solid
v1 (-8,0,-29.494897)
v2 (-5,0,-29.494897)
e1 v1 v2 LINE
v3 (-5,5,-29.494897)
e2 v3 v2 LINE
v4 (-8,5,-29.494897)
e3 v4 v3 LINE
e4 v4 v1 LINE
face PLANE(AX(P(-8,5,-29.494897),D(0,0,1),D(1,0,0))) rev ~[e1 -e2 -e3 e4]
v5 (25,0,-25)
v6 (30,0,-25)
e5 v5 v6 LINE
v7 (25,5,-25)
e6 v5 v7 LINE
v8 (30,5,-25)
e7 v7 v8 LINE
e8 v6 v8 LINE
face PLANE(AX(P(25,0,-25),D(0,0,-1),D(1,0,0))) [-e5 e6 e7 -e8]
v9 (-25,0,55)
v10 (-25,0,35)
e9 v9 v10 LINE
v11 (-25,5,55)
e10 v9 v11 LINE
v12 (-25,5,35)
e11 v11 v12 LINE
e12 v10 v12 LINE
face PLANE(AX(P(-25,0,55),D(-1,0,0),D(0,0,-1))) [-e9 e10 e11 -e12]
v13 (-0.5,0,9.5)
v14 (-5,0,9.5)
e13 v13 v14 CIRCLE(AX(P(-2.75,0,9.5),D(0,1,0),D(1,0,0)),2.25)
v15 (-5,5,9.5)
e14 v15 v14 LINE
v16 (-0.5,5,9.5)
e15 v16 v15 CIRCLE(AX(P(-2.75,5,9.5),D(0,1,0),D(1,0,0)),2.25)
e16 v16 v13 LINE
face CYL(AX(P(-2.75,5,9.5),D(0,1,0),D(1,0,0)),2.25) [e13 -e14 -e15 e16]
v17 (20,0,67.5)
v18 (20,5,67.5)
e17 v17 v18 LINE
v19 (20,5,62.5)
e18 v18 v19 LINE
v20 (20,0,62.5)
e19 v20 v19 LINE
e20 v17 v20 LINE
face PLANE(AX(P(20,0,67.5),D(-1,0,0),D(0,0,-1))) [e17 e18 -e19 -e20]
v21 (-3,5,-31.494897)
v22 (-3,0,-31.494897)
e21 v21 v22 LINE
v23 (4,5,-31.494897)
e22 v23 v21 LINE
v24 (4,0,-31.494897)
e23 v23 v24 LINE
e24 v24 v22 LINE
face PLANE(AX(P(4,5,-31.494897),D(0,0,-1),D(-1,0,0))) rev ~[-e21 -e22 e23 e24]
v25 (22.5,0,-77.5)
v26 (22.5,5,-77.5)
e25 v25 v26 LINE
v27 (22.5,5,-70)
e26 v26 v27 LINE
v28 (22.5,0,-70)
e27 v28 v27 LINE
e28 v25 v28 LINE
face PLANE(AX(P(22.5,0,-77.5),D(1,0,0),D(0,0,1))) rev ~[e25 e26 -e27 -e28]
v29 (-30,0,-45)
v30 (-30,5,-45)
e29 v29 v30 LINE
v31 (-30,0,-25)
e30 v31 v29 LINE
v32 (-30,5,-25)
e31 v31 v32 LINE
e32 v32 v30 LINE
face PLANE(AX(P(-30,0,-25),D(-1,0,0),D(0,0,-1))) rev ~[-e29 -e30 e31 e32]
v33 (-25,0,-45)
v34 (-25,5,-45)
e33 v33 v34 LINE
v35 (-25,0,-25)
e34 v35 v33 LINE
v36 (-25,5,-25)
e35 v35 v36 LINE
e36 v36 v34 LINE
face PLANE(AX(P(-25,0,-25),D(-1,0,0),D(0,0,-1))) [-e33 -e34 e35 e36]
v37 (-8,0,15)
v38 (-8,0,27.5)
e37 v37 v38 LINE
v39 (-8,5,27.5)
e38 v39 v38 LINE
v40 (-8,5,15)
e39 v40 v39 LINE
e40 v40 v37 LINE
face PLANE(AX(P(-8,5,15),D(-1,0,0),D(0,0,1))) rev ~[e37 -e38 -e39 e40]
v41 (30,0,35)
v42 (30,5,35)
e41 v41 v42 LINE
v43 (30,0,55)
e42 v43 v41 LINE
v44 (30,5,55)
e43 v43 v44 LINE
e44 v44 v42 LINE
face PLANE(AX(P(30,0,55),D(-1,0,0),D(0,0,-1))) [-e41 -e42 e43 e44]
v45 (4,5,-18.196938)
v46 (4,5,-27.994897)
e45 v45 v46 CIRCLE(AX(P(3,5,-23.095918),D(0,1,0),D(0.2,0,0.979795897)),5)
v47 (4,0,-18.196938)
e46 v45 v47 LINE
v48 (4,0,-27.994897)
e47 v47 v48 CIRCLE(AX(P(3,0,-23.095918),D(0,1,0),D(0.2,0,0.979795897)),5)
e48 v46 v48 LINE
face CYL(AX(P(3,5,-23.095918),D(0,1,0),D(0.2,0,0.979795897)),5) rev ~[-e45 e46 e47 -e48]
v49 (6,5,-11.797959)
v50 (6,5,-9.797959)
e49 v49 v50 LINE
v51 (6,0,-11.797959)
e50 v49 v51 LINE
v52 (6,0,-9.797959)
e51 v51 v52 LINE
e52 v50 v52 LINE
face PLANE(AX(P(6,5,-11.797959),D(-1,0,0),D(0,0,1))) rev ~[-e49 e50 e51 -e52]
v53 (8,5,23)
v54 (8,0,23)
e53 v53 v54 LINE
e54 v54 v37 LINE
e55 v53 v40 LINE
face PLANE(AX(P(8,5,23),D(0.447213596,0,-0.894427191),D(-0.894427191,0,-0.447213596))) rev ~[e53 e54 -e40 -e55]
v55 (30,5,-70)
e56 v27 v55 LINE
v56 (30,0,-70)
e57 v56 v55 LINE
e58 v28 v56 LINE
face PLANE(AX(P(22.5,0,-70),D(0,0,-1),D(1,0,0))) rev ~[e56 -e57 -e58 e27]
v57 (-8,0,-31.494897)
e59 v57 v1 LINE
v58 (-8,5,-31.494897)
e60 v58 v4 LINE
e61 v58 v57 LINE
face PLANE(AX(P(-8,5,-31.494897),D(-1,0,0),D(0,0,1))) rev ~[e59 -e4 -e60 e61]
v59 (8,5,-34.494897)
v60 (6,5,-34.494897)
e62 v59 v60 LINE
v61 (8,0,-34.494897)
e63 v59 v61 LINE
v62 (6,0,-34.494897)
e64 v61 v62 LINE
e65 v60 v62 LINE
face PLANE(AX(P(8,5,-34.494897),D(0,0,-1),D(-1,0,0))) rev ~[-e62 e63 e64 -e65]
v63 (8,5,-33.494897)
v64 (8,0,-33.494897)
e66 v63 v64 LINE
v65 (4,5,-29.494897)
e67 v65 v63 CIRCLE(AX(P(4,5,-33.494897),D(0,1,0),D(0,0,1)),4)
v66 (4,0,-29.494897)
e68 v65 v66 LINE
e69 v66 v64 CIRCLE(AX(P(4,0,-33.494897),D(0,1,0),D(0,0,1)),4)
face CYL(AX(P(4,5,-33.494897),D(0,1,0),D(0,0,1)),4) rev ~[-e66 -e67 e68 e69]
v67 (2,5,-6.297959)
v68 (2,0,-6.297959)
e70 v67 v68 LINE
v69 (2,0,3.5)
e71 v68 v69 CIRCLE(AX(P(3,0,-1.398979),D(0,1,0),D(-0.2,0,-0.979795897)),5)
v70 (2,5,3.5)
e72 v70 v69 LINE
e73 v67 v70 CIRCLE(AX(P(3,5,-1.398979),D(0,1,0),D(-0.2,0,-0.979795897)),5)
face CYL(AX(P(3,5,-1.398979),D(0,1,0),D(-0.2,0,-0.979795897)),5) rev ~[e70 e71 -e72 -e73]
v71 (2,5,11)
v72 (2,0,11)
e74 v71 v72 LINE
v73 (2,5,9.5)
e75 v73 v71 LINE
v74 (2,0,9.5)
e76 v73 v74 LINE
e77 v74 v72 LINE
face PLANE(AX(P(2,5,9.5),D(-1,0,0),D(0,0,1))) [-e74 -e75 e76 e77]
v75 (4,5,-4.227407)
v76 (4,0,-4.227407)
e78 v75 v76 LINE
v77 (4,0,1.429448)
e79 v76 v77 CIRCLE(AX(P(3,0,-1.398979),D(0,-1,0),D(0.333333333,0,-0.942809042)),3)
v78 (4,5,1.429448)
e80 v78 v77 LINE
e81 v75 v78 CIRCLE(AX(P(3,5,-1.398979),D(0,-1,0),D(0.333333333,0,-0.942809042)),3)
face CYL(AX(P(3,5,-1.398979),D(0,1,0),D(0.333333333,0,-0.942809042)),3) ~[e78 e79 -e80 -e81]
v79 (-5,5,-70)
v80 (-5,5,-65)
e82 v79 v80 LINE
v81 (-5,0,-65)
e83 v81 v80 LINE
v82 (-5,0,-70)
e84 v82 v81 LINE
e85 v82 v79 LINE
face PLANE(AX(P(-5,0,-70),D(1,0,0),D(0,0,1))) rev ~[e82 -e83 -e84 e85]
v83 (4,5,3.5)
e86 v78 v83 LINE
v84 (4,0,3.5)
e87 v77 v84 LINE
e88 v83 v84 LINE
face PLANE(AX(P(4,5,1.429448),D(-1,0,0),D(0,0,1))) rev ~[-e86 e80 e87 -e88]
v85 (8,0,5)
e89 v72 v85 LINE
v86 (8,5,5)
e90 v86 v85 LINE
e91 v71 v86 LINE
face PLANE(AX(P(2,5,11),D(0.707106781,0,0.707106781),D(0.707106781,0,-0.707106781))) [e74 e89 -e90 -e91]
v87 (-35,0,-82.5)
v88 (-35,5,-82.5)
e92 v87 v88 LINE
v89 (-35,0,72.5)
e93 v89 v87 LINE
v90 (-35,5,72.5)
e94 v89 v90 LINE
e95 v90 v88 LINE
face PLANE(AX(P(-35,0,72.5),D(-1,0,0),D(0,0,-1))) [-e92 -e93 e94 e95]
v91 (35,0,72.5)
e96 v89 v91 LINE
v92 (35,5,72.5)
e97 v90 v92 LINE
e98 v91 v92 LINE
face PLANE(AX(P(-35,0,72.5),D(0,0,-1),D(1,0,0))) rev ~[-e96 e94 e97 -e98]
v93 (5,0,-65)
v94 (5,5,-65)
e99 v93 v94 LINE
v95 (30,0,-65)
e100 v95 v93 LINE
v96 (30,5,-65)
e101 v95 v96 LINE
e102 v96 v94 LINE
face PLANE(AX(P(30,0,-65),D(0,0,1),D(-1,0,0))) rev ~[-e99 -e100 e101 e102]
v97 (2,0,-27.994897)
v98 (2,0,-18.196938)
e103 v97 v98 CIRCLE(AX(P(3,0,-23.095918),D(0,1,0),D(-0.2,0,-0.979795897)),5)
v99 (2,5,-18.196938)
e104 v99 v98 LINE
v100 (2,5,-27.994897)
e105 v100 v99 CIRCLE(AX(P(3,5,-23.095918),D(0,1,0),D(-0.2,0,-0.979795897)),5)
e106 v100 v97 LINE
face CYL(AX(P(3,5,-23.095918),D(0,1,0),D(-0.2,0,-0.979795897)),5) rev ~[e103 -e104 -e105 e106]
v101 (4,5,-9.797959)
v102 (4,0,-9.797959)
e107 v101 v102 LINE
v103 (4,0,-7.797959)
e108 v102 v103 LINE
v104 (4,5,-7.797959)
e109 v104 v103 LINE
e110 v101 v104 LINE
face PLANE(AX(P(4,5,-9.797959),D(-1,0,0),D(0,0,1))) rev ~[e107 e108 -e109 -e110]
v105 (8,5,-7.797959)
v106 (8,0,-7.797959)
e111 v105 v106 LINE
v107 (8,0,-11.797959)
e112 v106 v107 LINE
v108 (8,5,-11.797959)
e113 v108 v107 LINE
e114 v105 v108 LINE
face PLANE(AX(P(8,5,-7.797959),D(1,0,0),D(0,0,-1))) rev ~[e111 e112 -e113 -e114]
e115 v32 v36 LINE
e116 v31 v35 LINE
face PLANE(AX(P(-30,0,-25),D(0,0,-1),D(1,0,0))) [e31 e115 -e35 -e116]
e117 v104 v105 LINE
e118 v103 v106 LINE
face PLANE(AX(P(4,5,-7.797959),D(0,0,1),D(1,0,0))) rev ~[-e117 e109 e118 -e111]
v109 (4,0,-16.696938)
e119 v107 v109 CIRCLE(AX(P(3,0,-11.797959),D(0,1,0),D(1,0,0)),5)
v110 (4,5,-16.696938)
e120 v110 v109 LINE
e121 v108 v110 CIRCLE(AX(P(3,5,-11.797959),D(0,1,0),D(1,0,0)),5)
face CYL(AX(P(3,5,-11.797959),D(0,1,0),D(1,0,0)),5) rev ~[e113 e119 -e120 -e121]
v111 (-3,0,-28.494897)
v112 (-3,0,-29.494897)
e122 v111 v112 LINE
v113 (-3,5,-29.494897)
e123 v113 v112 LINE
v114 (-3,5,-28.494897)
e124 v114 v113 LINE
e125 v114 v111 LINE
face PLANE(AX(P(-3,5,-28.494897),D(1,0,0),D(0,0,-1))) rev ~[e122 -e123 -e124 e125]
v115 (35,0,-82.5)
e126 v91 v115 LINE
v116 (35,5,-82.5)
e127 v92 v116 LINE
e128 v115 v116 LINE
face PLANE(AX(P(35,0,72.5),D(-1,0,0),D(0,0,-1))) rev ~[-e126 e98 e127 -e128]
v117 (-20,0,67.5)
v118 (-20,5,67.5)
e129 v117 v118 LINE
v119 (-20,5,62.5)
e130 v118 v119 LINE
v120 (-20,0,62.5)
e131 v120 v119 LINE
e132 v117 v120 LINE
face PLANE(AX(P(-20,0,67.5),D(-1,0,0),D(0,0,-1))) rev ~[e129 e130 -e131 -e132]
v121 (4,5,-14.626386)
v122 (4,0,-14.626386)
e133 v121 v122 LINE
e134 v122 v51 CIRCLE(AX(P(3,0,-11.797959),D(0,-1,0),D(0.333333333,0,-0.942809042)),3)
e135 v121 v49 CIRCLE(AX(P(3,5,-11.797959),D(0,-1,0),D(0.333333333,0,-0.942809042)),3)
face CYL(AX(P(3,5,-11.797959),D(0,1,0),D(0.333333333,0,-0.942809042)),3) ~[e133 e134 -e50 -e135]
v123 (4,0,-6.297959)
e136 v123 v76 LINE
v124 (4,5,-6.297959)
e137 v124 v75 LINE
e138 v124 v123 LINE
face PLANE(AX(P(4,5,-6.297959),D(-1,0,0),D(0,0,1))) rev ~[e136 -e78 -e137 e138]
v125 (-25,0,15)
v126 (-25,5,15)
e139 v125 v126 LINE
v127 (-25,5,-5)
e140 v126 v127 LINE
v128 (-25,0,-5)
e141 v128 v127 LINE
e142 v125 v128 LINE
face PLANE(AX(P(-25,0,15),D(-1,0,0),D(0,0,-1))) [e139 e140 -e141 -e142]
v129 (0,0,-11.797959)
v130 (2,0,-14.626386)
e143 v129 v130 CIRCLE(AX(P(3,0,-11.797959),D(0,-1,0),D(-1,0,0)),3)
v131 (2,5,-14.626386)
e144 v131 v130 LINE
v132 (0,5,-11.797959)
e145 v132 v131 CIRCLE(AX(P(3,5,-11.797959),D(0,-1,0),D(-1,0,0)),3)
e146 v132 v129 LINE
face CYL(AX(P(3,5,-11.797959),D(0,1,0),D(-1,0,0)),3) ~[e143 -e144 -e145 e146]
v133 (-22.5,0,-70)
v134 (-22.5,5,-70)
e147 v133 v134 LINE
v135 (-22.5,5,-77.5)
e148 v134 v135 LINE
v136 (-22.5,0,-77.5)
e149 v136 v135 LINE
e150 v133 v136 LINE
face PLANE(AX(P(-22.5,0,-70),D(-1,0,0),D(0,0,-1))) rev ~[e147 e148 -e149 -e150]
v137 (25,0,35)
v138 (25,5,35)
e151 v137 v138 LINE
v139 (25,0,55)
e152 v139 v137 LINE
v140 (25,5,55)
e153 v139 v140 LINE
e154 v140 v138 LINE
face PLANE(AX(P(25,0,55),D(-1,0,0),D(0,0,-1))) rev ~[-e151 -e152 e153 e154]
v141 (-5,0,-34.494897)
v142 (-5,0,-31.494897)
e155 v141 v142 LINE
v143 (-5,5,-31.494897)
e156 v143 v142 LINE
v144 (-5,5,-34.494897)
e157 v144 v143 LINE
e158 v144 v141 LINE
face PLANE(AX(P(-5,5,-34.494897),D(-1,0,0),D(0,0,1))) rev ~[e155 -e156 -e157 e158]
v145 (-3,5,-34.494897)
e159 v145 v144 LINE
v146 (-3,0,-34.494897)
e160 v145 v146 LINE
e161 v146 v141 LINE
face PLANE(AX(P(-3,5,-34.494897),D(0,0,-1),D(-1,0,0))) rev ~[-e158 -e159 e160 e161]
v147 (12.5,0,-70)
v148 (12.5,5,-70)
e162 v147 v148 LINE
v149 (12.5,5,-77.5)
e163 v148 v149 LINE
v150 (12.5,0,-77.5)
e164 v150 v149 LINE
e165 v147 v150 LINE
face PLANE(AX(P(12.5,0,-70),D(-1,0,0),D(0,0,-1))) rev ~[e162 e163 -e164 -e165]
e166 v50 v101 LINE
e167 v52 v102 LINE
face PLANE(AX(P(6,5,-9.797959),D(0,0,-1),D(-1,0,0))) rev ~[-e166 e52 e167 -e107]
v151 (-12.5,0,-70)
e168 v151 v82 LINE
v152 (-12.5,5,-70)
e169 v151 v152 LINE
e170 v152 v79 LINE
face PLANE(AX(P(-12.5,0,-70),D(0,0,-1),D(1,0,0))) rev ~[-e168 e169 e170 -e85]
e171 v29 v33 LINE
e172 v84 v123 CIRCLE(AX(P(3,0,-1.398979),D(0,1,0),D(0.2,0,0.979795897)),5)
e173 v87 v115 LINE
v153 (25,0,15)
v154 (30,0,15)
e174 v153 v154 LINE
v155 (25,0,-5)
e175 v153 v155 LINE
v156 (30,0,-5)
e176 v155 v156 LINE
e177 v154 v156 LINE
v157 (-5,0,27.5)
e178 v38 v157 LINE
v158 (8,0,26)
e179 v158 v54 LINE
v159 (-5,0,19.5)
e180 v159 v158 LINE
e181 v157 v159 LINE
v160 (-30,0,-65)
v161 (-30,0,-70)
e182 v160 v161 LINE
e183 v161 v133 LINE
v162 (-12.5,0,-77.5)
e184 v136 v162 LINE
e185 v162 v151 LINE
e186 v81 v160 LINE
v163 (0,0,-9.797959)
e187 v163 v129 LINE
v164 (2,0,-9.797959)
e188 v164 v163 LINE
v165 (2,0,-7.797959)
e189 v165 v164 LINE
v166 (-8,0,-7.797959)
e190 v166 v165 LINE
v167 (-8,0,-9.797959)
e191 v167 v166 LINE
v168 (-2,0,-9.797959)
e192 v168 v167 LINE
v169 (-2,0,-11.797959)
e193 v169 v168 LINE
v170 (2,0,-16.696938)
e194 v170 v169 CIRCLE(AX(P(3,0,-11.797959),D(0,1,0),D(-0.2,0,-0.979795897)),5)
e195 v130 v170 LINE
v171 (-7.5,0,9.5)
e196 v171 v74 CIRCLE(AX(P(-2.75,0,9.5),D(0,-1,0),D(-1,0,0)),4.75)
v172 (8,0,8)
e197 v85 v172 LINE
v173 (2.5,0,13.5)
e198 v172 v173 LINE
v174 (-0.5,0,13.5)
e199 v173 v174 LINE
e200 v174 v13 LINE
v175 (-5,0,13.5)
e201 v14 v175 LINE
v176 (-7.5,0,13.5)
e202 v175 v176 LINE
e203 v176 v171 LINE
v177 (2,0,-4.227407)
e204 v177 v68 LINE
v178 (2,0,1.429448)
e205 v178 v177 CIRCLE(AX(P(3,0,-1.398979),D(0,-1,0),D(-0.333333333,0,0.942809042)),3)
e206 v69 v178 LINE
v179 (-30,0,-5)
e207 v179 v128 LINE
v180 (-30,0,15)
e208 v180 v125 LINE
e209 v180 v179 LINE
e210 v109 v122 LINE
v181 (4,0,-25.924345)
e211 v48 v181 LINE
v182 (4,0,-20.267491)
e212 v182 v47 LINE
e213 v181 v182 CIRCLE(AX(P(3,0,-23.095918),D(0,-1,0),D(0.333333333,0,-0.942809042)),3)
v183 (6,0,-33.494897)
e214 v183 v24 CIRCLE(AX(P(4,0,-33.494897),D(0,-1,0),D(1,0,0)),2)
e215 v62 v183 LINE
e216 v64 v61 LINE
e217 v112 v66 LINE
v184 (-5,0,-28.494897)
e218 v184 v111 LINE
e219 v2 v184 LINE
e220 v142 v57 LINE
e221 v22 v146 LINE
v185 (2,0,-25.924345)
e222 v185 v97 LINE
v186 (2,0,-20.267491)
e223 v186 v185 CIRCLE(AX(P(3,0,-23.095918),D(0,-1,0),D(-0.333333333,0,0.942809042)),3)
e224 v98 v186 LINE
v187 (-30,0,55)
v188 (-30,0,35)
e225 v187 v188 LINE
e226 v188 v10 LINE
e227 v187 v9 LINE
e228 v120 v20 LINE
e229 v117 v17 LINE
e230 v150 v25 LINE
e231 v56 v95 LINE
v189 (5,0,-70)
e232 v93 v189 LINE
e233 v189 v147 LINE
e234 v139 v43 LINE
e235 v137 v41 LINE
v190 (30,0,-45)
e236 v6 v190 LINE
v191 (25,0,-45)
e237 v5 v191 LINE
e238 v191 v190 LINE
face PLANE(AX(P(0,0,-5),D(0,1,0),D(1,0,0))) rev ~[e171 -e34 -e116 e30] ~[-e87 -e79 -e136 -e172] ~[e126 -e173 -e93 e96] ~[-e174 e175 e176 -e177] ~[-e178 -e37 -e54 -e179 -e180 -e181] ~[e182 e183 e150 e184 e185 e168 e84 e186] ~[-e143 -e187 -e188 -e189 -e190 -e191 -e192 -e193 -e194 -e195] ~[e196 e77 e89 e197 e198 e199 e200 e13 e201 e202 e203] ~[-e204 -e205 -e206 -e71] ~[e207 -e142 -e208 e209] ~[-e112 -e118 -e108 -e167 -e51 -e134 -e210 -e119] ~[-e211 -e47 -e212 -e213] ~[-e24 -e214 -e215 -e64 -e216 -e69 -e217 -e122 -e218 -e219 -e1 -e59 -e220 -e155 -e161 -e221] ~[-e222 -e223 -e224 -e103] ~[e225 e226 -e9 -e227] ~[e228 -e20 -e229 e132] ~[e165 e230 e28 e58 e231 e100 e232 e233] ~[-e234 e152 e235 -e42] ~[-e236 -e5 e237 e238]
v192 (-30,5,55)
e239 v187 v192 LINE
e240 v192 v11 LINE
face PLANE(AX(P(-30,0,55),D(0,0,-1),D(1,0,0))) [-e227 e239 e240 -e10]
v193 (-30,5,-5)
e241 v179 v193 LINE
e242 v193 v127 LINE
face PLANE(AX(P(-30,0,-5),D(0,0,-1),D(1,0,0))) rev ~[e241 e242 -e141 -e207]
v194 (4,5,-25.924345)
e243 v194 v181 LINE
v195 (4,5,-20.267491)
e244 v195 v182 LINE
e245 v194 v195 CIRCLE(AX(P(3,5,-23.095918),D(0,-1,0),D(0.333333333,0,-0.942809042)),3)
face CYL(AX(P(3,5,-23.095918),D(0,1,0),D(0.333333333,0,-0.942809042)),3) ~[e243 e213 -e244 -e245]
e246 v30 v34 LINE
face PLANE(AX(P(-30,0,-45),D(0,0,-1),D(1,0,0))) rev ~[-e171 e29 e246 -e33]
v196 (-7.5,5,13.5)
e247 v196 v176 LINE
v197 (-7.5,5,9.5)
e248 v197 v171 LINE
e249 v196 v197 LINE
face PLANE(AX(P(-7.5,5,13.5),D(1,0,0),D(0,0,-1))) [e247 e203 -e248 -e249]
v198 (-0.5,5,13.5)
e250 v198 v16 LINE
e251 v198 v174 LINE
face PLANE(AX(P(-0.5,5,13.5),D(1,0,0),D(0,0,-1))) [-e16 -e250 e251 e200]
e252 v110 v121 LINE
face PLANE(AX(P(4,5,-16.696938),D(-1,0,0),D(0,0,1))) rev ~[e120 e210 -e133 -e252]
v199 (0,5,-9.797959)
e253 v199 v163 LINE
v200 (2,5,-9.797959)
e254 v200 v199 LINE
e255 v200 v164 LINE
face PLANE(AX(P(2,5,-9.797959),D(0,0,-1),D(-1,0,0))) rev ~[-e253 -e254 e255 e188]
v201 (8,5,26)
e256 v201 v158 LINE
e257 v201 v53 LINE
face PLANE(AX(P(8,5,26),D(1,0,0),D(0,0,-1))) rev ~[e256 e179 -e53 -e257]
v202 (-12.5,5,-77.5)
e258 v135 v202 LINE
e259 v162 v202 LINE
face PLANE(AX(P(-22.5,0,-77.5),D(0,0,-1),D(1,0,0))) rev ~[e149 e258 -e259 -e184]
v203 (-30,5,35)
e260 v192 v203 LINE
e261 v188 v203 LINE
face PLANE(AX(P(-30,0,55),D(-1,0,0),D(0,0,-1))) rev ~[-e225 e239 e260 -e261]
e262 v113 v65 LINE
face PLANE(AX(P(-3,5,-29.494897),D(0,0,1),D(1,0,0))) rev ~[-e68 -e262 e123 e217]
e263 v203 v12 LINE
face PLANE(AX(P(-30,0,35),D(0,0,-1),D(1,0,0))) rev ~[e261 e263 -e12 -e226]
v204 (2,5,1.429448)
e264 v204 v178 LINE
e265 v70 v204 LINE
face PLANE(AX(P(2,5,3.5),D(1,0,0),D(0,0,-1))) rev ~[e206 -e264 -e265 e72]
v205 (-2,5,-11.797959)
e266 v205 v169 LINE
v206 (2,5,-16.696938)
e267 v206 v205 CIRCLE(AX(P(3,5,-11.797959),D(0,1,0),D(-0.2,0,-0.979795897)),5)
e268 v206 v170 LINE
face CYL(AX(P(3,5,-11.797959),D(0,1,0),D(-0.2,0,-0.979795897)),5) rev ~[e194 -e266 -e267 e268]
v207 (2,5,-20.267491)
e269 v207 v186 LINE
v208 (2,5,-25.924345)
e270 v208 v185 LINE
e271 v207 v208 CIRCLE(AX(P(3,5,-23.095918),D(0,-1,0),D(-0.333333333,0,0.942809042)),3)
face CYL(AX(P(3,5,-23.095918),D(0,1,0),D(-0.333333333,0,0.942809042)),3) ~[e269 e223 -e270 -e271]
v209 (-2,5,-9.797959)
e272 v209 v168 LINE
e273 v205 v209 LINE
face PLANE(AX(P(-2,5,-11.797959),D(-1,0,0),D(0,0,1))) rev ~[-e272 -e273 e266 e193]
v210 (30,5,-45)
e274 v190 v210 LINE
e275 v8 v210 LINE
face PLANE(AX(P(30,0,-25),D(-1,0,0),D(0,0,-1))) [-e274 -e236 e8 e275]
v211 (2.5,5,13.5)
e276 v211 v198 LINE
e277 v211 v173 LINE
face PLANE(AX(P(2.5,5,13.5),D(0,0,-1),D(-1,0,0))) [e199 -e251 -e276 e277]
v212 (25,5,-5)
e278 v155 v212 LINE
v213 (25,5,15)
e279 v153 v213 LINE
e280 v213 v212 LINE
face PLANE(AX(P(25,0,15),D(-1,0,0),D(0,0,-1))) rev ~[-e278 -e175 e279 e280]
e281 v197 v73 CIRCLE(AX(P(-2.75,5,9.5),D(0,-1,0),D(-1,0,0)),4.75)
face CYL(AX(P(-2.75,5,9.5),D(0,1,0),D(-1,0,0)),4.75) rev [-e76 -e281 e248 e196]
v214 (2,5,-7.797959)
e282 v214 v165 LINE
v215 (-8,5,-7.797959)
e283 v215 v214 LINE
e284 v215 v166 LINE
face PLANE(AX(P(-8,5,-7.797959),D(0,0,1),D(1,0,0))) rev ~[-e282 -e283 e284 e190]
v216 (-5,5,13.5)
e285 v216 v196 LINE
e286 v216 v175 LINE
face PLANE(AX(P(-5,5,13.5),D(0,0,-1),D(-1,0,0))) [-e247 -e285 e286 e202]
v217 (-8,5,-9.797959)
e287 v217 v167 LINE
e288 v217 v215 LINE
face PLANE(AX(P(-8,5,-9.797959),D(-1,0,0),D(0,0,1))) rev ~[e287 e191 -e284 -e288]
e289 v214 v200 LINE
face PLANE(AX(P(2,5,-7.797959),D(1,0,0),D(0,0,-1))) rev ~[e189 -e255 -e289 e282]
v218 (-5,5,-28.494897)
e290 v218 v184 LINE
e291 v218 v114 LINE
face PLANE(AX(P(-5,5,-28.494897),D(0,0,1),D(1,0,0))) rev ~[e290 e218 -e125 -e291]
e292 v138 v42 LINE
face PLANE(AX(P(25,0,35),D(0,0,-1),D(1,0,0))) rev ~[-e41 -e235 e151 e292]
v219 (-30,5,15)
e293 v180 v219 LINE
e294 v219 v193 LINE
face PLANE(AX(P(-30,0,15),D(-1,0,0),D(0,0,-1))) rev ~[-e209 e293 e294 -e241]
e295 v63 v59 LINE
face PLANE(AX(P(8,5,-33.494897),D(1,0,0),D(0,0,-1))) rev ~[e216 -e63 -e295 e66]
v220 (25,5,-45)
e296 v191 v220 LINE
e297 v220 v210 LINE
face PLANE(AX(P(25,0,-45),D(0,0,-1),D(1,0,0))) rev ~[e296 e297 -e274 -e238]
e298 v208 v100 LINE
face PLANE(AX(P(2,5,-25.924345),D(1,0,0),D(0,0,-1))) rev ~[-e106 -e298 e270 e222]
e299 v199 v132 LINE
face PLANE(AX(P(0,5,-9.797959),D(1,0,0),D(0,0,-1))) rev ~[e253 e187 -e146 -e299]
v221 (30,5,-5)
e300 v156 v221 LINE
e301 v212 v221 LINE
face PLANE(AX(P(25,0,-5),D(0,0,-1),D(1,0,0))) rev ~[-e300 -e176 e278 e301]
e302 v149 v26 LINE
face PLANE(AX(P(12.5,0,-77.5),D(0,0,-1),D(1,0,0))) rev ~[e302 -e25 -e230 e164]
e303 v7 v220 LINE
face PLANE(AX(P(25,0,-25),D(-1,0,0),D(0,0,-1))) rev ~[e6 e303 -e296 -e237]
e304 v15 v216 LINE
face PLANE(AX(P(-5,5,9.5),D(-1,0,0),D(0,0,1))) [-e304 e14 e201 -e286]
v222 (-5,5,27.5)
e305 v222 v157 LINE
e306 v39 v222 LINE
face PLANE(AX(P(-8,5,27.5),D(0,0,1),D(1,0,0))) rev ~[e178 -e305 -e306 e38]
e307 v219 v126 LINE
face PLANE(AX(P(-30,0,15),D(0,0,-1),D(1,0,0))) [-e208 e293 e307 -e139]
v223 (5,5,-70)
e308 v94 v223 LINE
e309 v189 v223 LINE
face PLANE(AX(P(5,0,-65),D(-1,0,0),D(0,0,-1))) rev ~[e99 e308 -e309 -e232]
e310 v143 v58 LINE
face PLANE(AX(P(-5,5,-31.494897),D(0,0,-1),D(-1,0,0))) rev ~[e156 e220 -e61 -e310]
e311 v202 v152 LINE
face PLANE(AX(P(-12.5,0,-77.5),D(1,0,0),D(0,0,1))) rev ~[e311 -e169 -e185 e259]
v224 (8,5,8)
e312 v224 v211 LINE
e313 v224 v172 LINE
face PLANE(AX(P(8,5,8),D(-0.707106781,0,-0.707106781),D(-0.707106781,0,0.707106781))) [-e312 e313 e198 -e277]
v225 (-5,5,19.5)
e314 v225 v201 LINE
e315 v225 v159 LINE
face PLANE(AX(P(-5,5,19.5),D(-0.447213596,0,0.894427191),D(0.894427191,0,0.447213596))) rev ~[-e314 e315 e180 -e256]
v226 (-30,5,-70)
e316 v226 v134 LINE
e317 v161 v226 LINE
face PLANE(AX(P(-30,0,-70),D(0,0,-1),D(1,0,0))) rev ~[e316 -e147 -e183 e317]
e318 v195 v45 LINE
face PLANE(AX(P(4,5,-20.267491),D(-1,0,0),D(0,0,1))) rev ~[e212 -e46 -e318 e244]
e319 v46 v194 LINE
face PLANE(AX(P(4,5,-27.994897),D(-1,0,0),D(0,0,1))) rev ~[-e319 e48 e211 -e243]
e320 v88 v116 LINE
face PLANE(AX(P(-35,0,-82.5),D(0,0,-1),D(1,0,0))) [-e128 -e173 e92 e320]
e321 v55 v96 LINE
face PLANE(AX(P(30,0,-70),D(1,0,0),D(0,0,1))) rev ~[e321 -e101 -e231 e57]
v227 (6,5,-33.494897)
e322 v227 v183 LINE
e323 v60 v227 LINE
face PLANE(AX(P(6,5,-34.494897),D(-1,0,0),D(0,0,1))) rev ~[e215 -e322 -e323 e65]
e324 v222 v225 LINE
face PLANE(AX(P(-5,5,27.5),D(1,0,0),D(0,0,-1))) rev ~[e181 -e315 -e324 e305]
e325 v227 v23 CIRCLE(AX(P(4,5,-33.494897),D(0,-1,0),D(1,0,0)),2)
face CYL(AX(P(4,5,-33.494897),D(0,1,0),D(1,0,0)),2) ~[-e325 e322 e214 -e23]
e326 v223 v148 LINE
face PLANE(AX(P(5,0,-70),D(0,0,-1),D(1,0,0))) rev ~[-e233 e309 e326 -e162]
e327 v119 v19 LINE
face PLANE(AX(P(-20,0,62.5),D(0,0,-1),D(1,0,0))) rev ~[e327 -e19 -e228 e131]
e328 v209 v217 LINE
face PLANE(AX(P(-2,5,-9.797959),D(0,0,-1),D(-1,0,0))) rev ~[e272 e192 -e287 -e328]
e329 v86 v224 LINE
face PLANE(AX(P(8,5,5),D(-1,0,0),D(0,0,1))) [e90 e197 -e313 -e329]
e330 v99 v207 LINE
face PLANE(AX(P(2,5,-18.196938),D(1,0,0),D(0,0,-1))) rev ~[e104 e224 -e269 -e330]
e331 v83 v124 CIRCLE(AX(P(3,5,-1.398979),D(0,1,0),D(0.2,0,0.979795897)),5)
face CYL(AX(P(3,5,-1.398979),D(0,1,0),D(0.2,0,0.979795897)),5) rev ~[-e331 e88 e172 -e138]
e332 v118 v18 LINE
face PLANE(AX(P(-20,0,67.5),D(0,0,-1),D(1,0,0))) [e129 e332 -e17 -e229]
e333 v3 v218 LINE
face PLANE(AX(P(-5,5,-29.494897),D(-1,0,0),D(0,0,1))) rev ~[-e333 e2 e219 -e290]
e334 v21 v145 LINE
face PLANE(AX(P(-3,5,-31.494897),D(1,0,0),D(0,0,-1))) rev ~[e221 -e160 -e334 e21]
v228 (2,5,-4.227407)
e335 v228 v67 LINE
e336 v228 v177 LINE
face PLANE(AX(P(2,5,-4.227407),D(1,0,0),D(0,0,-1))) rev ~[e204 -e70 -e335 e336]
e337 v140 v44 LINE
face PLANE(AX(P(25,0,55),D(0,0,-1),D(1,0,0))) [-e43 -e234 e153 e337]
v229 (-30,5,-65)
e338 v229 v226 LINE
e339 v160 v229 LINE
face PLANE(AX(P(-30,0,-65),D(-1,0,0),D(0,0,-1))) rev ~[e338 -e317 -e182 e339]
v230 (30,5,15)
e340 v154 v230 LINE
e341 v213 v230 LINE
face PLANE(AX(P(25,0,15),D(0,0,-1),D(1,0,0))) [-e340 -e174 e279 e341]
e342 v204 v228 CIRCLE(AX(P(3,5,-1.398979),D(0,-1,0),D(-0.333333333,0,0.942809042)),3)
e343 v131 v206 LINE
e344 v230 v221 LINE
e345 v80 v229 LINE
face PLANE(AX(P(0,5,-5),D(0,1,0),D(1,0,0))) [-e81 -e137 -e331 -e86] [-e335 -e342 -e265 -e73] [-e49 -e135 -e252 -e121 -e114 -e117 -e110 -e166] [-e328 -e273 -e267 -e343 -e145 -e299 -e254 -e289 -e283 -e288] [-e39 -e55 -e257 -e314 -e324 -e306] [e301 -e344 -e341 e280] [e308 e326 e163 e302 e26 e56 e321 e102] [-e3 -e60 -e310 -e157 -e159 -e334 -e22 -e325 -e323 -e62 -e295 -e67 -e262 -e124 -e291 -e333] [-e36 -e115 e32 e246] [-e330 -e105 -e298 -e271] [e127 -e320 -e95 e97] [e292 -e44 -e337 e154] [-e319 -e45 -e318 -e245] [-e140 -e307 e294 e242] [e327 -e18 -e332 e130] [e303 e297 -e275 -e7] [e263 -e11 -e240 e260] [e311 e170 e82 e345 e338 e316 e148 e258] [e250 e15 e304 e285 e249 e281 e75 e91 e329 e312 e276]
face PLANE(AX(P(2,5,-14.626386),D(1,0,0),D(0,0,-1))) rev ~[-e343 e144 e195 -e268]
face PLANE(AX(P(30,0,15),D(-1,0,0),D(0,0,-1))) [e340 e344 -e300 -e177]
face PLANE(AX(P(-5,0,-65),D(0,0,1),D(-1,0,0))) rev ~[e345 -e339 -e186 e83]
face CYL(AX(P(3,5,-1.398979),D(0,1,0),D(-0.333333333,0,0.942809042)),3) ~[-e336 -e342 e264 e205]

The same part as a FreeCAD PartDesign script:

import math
import FreeCAD as App
import Part
import Sketcher

V = App.Vector
Q = App.Units.Quantity

doc = App.newDocument("Part")
params = doc.addObject("Spreadsheet::Sheet", "Params")
for row, (alias, value) in enumerate([
    ("sketch1_width", "70 mm"),
    ("sketch1_width2", "5 mm"),
    ("sketch1_width3", "40 mm"),
    ("sketch1_width4", "10 mm"),
    ("sketch1_width5", "25 mm"),
    ("pad1_length", "5 mm"),
    ("sketch2_radius", "3 mm"),
    ("sketch2_radius2", "5 mm"),
    ("sketch2_width", "3 mm"),
    ("sketch2_height", "8 mm"),
    ("sketch2_radius3", "4.75 mm"),
    ("pocket1_length", "5 mm"),
], start=1):
    params.set(f"A{row}", alias)
    params.set(f"B{row}", "=" + value)
    params.setAlias(f"B{row}", alias)

body = doc.addObject("PartDesign::Body", "Body")

sketch1 = body.newObject("Sketcher::SketchObject", "Sketch")
sketch1.AttachmentSupport = (doc.getObject("XZ_Plane"), [""])
sketch1.MapMode = "FlatFace"
sketch1.addGeometry([
    Part.LineSegment(V(-35, -82.5, 0), V(-35, 72.5, 0)),
    Part.LineSegment(V(-35, 72.5, 0), V(35, 72.5, 0)),
    Part.LineSegment(V(35, 72.5, 0), V(35, -82.5, 0)),
    Part.LineSegment(V(35, -82.5, 0), V(-35, -82.5, 0)),
    Part.LineSegment(V(-25, 55, 0), V(-30, 55, 0)),
    Part.LineSegment(V(-30, 55, 0), V(-30, 35, 0)),
    Part.LineSegment(V(-30, 35, 0), V(-25, 35, 0)),
    Part.LineSegment(V(-25, 35, 0), V(-25, 55, 0)),
    Part.LineSegment(V(-25, 15, 0), V(-30, 15, 0)),
    Part.LineSegment(V(-30, 15, 0), V(-30, -5, 0)),
    Part.LineSegment(V(-30, -5, 0), V(-25, -5, 0)),
    Part.LineSegment(V(-25, -5, 0), V(-25, 15, 0)),
    Part.LineSegment(V(20, 67.5, 0), V(-20, 67.5, 0)),
    Part.LineSegment(V(-20, 67.5, 0), V(-20, 62.5, 0)),
    Part.LineSegment(V(-20, 62.5, 0), V(20, 62.5, 0)),
    Part.LineSegment(V(20, 62.5, 0), V(20, 67.5, 0)),
    Part.LineSegment(V(30, 55, 0), V(25, 55, 0)),
    Part.LineSegment(V(25, 55, 0), V(25, 35, 0)),
    Part.LineSegment(V(25, 35, 0), V(30, 35, 0)),
    Part.LineSegment(V(30, 35, 0), V(30, 55, 0)),
    Part.LineSegment(V(30, 15, 0), V(25, 15, 0)),
    Part.LineSegment(V(25, 15, 0), V(25, -5, 0)),
    Part.LineSegment(V(25, -5, 0), V(30, -5, 0)),
    Part.LineSegment(V(30, -5, 0), V(30, 15, 0)),
    Part.LineSegment(V(-25, -25, 0), V(-30, -25, 0)),
    Part.LineSegment(V(-30, -25, 0), V(-30, -45, 0)),
    Part.LineSegment(V(-30, -45, 0), V(-25, -45, 0)),
    Part.LineSegment(V(-25, -45, 0), V(-25, -25, 0)),
    Part.LineSegment(V(-22.5, -70, 0), V(-22.5, -77.5, 0)),
    Part.LineSegment(V(-22.5, -77.5, 0), V(-12.5, -77.5, 0)),
    Part.LineSegment(V(-12.5, -77.5, 0), V(-12.5, -70, 0)),
    Part.LineSegment(V(-12.5, -70, 0), V(-5, -70, 0)),
    Part.LineSegment(V(-5, -70, 0), V(-5, -65, 0)),
    Part.LineSegment(V(-5, -65, 0), V(-30, -65, 0)),
    Part.LineSegment(V(-30, -65, 0), V(-30, -70, 0)),
    Part.LineSegment(V(-30, -70, 0), V(-22.5, -70, 0)),
    Part.LineSegment(V(30, -25, 0), V(25, -25, 0)),
    Part.LineSegment(V(25, -25, 0), V(25, -45, 0)),
    Part.LineSegment(V(25, -45, 0), V(30, -45, 0)),
    Part.LineSegment(V(30, -45, 0), V(30, -25, 0)),
    Part.LineSegment(V(12.5, -70, 0), V(12.5, -77.5, 0)),
    Part.LineSegment(V(12.5, -77.5, 0), V(22.5, -77.5, 0)),
    Part.LineSegment(V(22.5, -77.5, 0), V(22.5, -70, 0)),
    Part.LineSegment(V(22.5, -70, 0), V(30, -70, 0)),
    Part.LineSegment(V(30, -70, 0), V(30, -65, 0)),
    Part.LineSegment(V(30, -65, 0), V(5, -65, 0)),
    Part.LineSegment(V(5, -65, 0), V(5, -70, 0)),
    Part.LineSegment(V(5, -70, 0), V(12.5, -70, 0)),
], False)
sketch1.addConstraint([
    Sketcher.Constraint("Coincident", 0, 2, 1, 1),
    Sketcher.Constraint("Coincident", 1, 2, 2, 1),
    Sketcher.Constraint("Coincident", 2, 2, 3, 1),
    Sketcher.Constraint("Coincident", 3, 2, 0, 1),
    Sketcher.Constraint("Coincident", 4, 2, 5, 1),
    Sketcher.Constraint("Coincident", 5, 2, 6, 1),
    Sketcher.Constraint("Coincident", 6, 2, 7, 1),
    Sketcher.Constraint("Coincident", 7, 2, 4, 1),
    Sketcher.Constraint("Coincident", 8, 2, 9, 1),
    Sketcher.Constraint("Coincident", 9, 2, 10, 1),
    Sketcher.Constraint("Coincident", 10, 2, 11, 1),
    Sketcher.Constraint("Coincident", 11, 2, 8, 1),
    Sketcher.Constraint("Coincident", 12, 2, 13, 1),
    Sketcher.Constraint("Coincident", 13, 2, 14, 1),
    Sketcher.Constraint("Coincident", 14, 2, 15, 1),
    Sketcher.Constraint("Coincident", 15, 2, 12, 1),
    Sketcher.Constraint("Coincident", 16, 2, 17, 1),
    Sketcher.Constraint("Coincident", 17, 2, 18, 1),
    Sketcher.Constraint("Coincident", 18, 2, 19, 1),
    Sketcher.Constraint("Coincident", 19, 2, 16, 1),
    Sketcher.Constraint("Coincident", 20, 2, 21, 1),
    Sketcher.Constraint("Coincident", 21, 2, 22, 1),
    Sketcher.Constraint("Coincident", 22, 2, 23, 1),
    Sketcher.Constraint("Coincident", 23, 2, 20, 1),
    Sketcher.Constraint("Coincident", 24, 2, 25, 1),
    Sketcher.Constraint("Coincident", 25, 2, 26, 1),
    Sketcher.Constraint("Coincident", 26, 2, 27, 1),
    Sketcher.Constraint("Coincident", 27, 2, 24, 1),
    Sketcher.Constraint("Coincident", 28, 2, 29, 1),
    Sketcher.Constraint("Coincident", 29, 2, 30, 1),
    Sketcher.Constraint("Coincident", 30, 2, 31, 1),
    Sketcher.Constraint("Coincident", 31, 2, 32, 1),
    Sketcher.Constraint("Coincident", 32, 2, 33, 1),
    Sketcher.Constraint("Coincident", 33, 2, 34, 1),
    Sketcher.Constraint("Coincident", 34, 2, 35, 1),
    Sketcher.Constraint("Coincident", 35, 2, 28, 1),
    Sketcher.Constraint("Coincident", 36, 2, 37, 1),
    Sketcher.Constraint("Coincident", 37, 2, 38, 1),
    Sketcher.Constraint("Coincident", 38, 2, 39, 1),
    Sketcher.Constraint("Coincident", 39, 2, 36, 1),
    Sketcher.Constraint("Coincident", 40, 2, 41, 1),
    Sketcher.Constraint("Coincident", 41, 2, 42, 1),
    Sketcher.Constraint("Coincident", 42, 2, 43, 1),
    Sketcher.Constraint("Coincident", 43, 2, 44, 1),
    Sketcher.Constraint("Coincident", 44, 2, 45, 1),
    Sketcher.Constraint("Coincident", 45, 2, 46, 1),
    Sketcher.Constraint("Coincident", 46, 2, 47, 1),
    Sketcher.Constraint("Coincident", 47, 2, 40, 1),
    Sketcher.Constraint("Vertical", 0),
    Sketcher.Constraint("Horizontal", 1),
    Sketcher.Constraint("Vertical", 2),
    Sketcher.Constraint("Horizontal", 3),
    Sketcher.Constraint("Horizontal", 4),
    Sketcher.Constraint("Vertical", 5),
    Sketcher.Constraint("Horizontal", 6),
    Sketcher.Constraint("Vertical", 7),
    Sketcher.Constraint("Horizontal", 8),
    Sketcher.Constraint("Vertical", 9),
    Sketcher.Constraint("Horizontal", 10),
    Sketcher.Constraint("Vertical", 11),
    Sketcher.Constraint("Horizontal", 12),
    Sketcher.Constraint("Vertical", 13),
    Sketcher.Constraint("Horizontal", 14),
    Sketcher.Constraint("Vertical", 15),
    Sketcher.Constraint("Horizontal", 16),
    Sketcher.Constraint("Vertical", 17),
    Sketcher.Constraint("Horizontal", 18),
    Sketcher.Constraint("Vertical", 19),
    Sketcher.Constraint("Horizontal", 20),
    Sketcher.Constraint("Vertical", 21),
    Sketcher.Constraint("Horizontal", 22),
    Sketcher.Constraint("Vertical", 23),
    Sketcher.Constraint("Horizontal", 24),
    Sketcher.Constraint("Vertical", 25),
    Sketcher.Constraint("Horizontal", 26),
    Sketcher.Constraint("Vertical", 27),
    Sketcher.Constraint("Vertical", 28),
    Sketcher.Constraint("Horizontal", 29),
    Sketcher.Constraint("Vertical", 30),
    Sketcher.Constraint("Horizontal", 31),
    Sketcher.Constraint("Vertical", 32),
    Sketcher.Constraint("Horizontal", 33),
    Sketcher.Constraint("Vertical", 34),
    Sketcher.Constraint("Horizontal", 35),
    Sketcher.Constraint("Horizontal", 36),
    Sketcher.Constraint("Vertical", 37),
    Sketcher.Constraint("Horizontal", 38),
    Sketcher.Constraint("Vertical", 39),
    Sketcher.Constraint("Vertical", 40),
    Sketcher.Constraint("Horizontal", 41),
    Sketcher.Constraint("Vertical", 42),
    Sketcher.Constraint("Horizontal", 43),
    Sketcher.Constraint("Vertical", 44),
    Sketcher.Constraint("Horizontal", 45),
    Sketcher.Constraint("Vertical", 46),
    Sketcher.Constraint("Horizontal", 47),
    Sketcher.Constraint("Symmetric", 7, 2, 16, 2, -2),
    Sketcher.Constraint("Symmetric", 5, 2, 18, 2, -2),
    Sketcher.Constraint("Symmetric", 11, 2, 20, 2, -2),
    Sketcher.Constraint("Symmetric", 9, 2, 22, 2, -2),
    Sketcher.Constraint("Symmetric", 27, 2, 36, 2, -2),
    Sketcher.Constraint("Symmetric", 25, 2, 38, 2, -2),
    Sketcher.Constraint("Symmetric", 29, 2, 40, 2, -2),
    Sketcher.Constraint("Symmetric", 35, 2, 42, 2, -2),
    Sketcher.Constraint("Symmetric", 33, 2, 44, 2, -2),
    Sketcher.Constraint("Symmetric", 31, 2, 46, 2, -2),
    Sketcher.Constraint("Horizontal", 31, 2, 34, 2),
    Sketcher.Constraint("Vertical", 5, 2, 8, 2),
    Sketcher.Constraint("Vertical", 7, 2, 10, 2),
    Sketcher.Constraint("Vertical", 9, 2, 24, 2),
    Sketcher.Constraint("Vertical", 11, 2, 26, 2),
    Sketcher.Constraint("Vertical", 25, 2, 33, 2),
    Sketcher.Constraint("Equal", 31, 35),
    Sketcher.Constraint("Equal", 7, 9),
    Sketcher.Constraint("Equal", 38, 13),
    Sketcher.Constraint("Equal", 23, 25),
    Sketcher.Constraint("Equal", 47, 28),
    Sketcher.Constraint("Equal", 15, 32),
    Sketcher.Constraint("DistanceX", 1, 1, 1, 2, Q("70 mm")),
    Sketcher.Constraint("DistanceX", 4, 2, 4, 1, Q("5 mm")),
    Sketcher.Constraint("DistanceX", 12, 2, 12, 1, Q("40 mm")),
    Sketcher.Constraint("DistanceX", 29, 1, 29, 2, Q("10 mm")),
    Sketcher.Constraint("DistanceX", 33, 2, 33, 1, Q("25 mm")),
    Sketcher.Constraint("DistanceY", 0, 1, 0, 2, Q("155 mm")),
    Sketcher.Constraint("DistanceY", 5, 2, 5, 1, Q("20 mm")),
    Sketcher.Constraint("DistanceX", 0, 2, -1, 1, Q("35 mm")),
    Sketcher.Constraint("DistanceX", 4, 2, -1, 1, Q("30 mm")),
    Sketcher.Constraint("DistanceY", -1, 1, 4, 2, Q("55 mm")),
    Sketcher.Constraint("DistanceY", -1, 1, 8, 2, Q("15 mm")),
    Sketcher.Constraint("DistanceX", 12, 2, -1, 1, Q("20 mm")),
    Sketcher.Constraint("DistanceY", 24, 2, -1, 1, Q("25 mm")),
    Sketcher.Constraint("DistanceY", 30, 2, -1, 1, Q("70 mm")),
    Sketcher.Constraint("DistanceY", 12, 2, 0, 2, Q("5 mm")),
    Sketcher.Constraint("DistanceY", 3, 2, 28, 2, Q("5 mm")),
])
sketch1.setExpression("Constraints[118]", "Params.sketch1_width")
sketch1.setExpression("Constraints[119]", "Params.sketch1_width2")
sketch1.setExpression("Constraints[120]", "Params.sketch1_width3")
sketch1.setExpression("Constraints[121]", "Params.sketch1_width4")
sketch1.setExpression("Constraints[122]", "Params.sketch1_width5")
pad1 = body.newObject("PartDesign::Pad", "Pad")
pad1.Profile = sketch1
pad1.setExpression("Length", "Params.pad1_length")
pad1.Reversed = True

sketch2 = body.newObject("Sketcher::SketchObject", "Sketch001")
sketch2.AttachmentSupport = (doc.getObject("XZ_Plane"), [""])
sketch2.MapMode = "FlatFace"
sketch2.AttachmentOffset = App.Placement(V(0, 0, -5), App.Rotation())
sketch2.addGeometry([
    Part.LineSegment(V(-8, 27.5, 0), V(-5, 27.5, 0)),
    Part.LineSegment(V(-5, 27.5, 0), V(-5, 19.5, 0)),
    Part.LineSegment(V(-5, 19.5, 0), V(8, 26, 0)),
    Part.LineSegment(V(8, 26, 0), V(8, 23, 0)),
    Part.LineSegment(V(8, 23, 0), V(-8, 15, 0)),
    Part.LineSegment(V(-8, 15, 0), V(-8, 27.5, 0)),
    Part.LineSegment(V(8, 8, 0), V(8, 5, 0)),
    Part.LineSegment(V(8, 5, 0), V(2, 11, 0)),
    Part.LineSegment(V(2, 11, 0), V(2, 9.5, 0)),
    Part.ArcOfCircle(Part.Circle(V(-2.75, 9.5, 0), V(0, 0, 1), 4.75), math.radians(180), math.radians(360)),
    Part.LineSegment(V(-7.5, 9.5, 0), V(-7.5, 13.5, 0)),
    Part.LineSegment(V(-7.5, 13.5, 0), V(-5, 13.5, 0)),
    Part.LineSegment(V(-5, 13.5, 0), V(-5, 9.5, 0)),
    Part.ArcOfCircle(Part.Circle(V(-2.75, 9.5, 0), V(0, 0, 1), 2.25), math.radians(180), math.radians(360)),
    Part.LineSegment(V(-0.5, 9.5, 0), V(-0.5, 13.5, 0)),
    Part.LineSegment(V(-0.5, 13.5, 0), V(2.5, 13.5, 0)),
    Part.LineSegment(V(2.5, 13.5, 0), V(8, 8, 0)),
    Part.LineSegment(V(2, 3.5, 0), V(2, 1.429448, 0)),
    Part.ArcOfCircle(Part.Circle(V(3, -1.398979, 0), V(0, 0, 1), 3), math.radians(109.471221), math.radians(250.528779)),
    Part.LineSegment(V(2, -4.227407, 0), V(2, -6.297959, 0)),
    Part.ArcOfCircle(Part.Circle(V(3, -1.398979, 0), V(0, 0, 1), 5), math.radians(101.536959), math.radians(258.463041)),
    Part.LineSegment(V(4, -6.297959, 0), V(4, -4.227407, 0)),
    Part.ArcOfCircle(Part.Circle(V(3, -1.398979, 0), V(0, 0, 1), 3), math.radians(-70.528779), math.radians(70.528779)),
    Part.LineSegment(V(4, 1.429448, 0), V(4, 3.5, 0)),
    Part.ArcOfCircle(Part.Circle(V(3, -1.398979, 0), V(0, 0, 1), 5), math.radians(-78.463041), math.radians(78.463041)),
    Part.LineSegment(V(-8, -7.797959, 0), V(2, -7.797959, 0)),
    Part.LineSegment(V(2, -7.797959, 0), V(2, -9.797959, 0)),
    Part.LineSegment(V(2, -9.797959, 0), V(0, -9.797959, 0)),
    Part.LineSegment(V(0, -9.797959, 0), V(0, -11.797959, 0)),
    Part.ArcOfCircle(Part.Circle(V(3, -11.797959, 0), V(0, 0, 1), 3), math.radians(180), math.radians(250.528779)),
    Part.LineSegment(V(2, -14.626386, 0), V(2, -16.696938, 0)),
    Part.ArcOfCircle(Part.Circle(V(3, -11.797959, 0), V(0, 0, 1), 5), math.radians(-180), math.radians(-101.536959)),
    Part.LineSegment(V(-2, -11.797959, 0), V(-2, -9.797959, 0)),
    Part.LineSegment(V(-2, -9.797959, 0), V(-8, -9.797959, 0)),
    Part.LineSegment(V(-8, -9.797959, 0), V(-8, -7.797959, 0)),
    Part.LineSegment(V(4, -7.797959, 0), V(8, -7.797959, 0)),
    Part.LineSegment(V(8, -7.797959, 0), V(8, -11.797959, 0)),
    Part.ArcOfCircle(Part.Circle(V(3, -11.797959, 0), V(0, 0, 1), 5), math.radians(-78.463041), math.radians(0)),
    Part.LineSegment(V(4, -16.696938, 0), V(4, -14.626386, 0)),
    Part.ArcOfCircle(Part.Circle(V(3, -11.797959, 0), V(0, 0, 1), 3), math.radians(-70.528779), math.radians(0)),
    Part.LineSegment(V(6, -11.797959, 0), V(6, -9.797959, 0)),
    Part.LineSegment(V(6, -9.797959, 0), V(4, -9.797959, 0)),
    Part.LineSegment(V(4, -9.797959, 0), V(4, -7.797959, 0)),
    Part.LineSegment(V(2, -18.196938, 0), V(2, -20.267491, 0)),
    Part.ArcOfCircle(Part.Circle(V(3, -23.095918, 0), V(0, 0, 1), 3), math.radians(109.471221), math.radians(250.528779)),
    Part.LineSegment(V(2, -25.924345, 0), V(2, -27.994897, 0)),
    Part.ArcOfCircle(Part.Circle(V(3, -23.095918, 0), V(0, 0, 1), 5), math.radians(101.536959), math.radians(258.463041)),
    Part.LineSegment(V(4, -27.994897, 0), V(4, -25.924345, 0)),
    Part.ArcOfCircle(Part.Circle(V(3, -23.095918, 0), V(0, 0, 1), 3), math.radians(-70.528779), math.radians(70.528779)),
    Part.LineSegment(V(4, -20.267491, 0), V(4, -18.196938, 0)),
    Part.ArcOfCircle(Part.Circle(V(3, -23.095918, 0), V(0, 0, 1), 5), math.radians(-78.463041), math.radians(78.463041)),
    Part.LineSegment(V(-8, -29.494897, 0), V(-5, -29.494897, 0)),
    Part.LineSegment(V(-5, -29.494897, 0), V(-5, -28.494897, 0)),
    Part.LineSegment(V(-5, -28.494897, 0), V(-3, -28.494897, 0)),
    Part.LineSegment(V(-3, -28.494897, 0), V(-3, -29.494897, 0)),
    Part.LineSegment(V(-3, -29.494897, 0), V(4, -29.494897, 0)),
    Part.ArcOfCircle(Part.Circle(V(4, -33.494897, 0), V(0, 0, 1), 4), math.radians(0), math.radians(90)),
    Part.LineSegment(V(8, -33.494897, 0), V(8, -34.494897, 0)),
    Part.LineSegment(V(8, -34.494897, 0), V(6, -34.494897, 0)),
    Part.LineSegment(V(6, -34.494897, 0), V(6, -33.494897, 0)),
    Part.ArcOfCircle(Part.Circle(V(4, -33.494897, 0), V(0, 0, 1), 2), math.radians(0), math.radians(90)),
    Part.LineSegment(V(4, -31.494897, 0), V(-3, -31.494897, 0)),
    Part.LineSegment(V(-3, -31.494897, 0), V(-3, -34.494897, 0)),
    Part.LineSegment(V(-3, -34.494897, 0), V(-5, -34.494897, 0)),
    Part.LineSegment(V(-5, -34.494897, 0), V(-5, -31.494897, 0)),
    Part.LineSegment(V(-5, -31.494897, 0), V(-8, -31.494897, 0)),
    Part.LineSegment(V(-8, -31.494897, 0), V(-8, -29.494897, 0)),
], False)
sketch2.addConstraint([
    Sketcher.Constraint("Coincident", 0, 2, 1, 1),
    Sketcher.Constraint("Coincident", 1, 2, 2, 1),
    Sketcher.Constraint("Coincident", 2, 2, 3, 1),
    Sketcher.Constraint("Coincident", 3, 2, 4, 1),
    Sketcher.Constraint("Coincident", 4, 2, 5, 1),
    Sketcher.Constraint("Coincident", 5, 2, 0, 1),
    Sketcher.Constraint("Coincident", 6, 2, 7, 1),
    Sketcher.Constraint("Coincident", 7, 2, 8, 1),
    Sketcher.Constraint("Tangent", 8, 2, 9, 2),
    Sketcher.Constraint("Tangent", 9, 1, 10, 1),
    Sketcher.Constraint("Coincident", 10, 2, 11, 1),
    Sketcher.Constraint("Coincident", 11, 2, 12, 1),
    Sketcher.Constraint("Tangent", 12, 2, 13, 1),
    Sketcher.Constraint("Tangent", 13, 2, 14, 1),
    Sketcher.Constraint("Coincident", 14, 2, 15, 1),
    Sketcher.Constraint("Coincident", 15, 2, 16, 1),
    Sketcher.Constraint("Coincident", 16, 2, 6, 1),
    Sketcher.Constraint("Coincident", 17, 2, 18, 1),
    Sketcher.Constraint("Coincident", 18, 2, 19, 1),
    Sketcher.Constraint("Coincident", 19, 2, 20, 2),
    Sketcher.Constraint("Coincident", 20, 1, 17, 1),
    Sketcher.Constraint("Coincident", 21, 2, 22, 1),
    Sketcher.Constraint("Coincident", 22, 2, 23, 1),
    Sketcher.Constraint("Coincident", 23, 2, 24, 2),
    Sketcher.Constraint("Coincident", 24, 1, 21, 1),
    Sketcher.Constraint("Coincident", 25, 2, 26, 1),
    Sketcher.Constraint("Coincident", 26, 2, 27, 1),
    Sketcher.Constraint("Coincident", 27, 2, 28, 1),
    Sketcher.Constraint("Tangent", 28, 2, 29, 1),
    Sketcher.Constraint("Coincident", 29, 2, 30, 1),
    Sketcher.Constraint("Coincident", 30, 2, 31, 2),
    Sketcher.Constraint("Tangent", 31, 1, 32, 1),
    Sketcher.Constraint("Coincident", 32, 2, 33, 1),
    Sketcher.Constraint("Coincident", 33, 2, 34, 1),
    Sketcher.Constraint("Coincident", 34, 2, 25, 1),
    Sketcher.Constraint("Coincident", 35, 2, 36, 1),
    Sketcher.Constraint("Tangent", 36, 2, 37, 2),
    Sketcher.Constraint("Coincident", 37, 1, 38, 1),
    Sketcher.Constraint("Coincident", 38, 2, 39, 1),
    Sketcher.Constraint("Tangent", 39, 2, 40, 1),
    Sketcher.Constraint("Coincident", 40, 2, 41, 1),
    Sketcher.Constraint("Coincident", 41, 2, 42, 1),
    Sketcher.Constraint("Coincident", 42, 2, 35, 1),
    Sketcher.Constraint("Coincident", 43, 2, 44, 1),
    Sketcher.Constraint("Coincident", 44, 2, 45, 1),
    Sketcher.Constraint("Coincident", 45, 2, 46, 2),
    Sketcher.Constraint("Coincident", 46, 1, 43, 1),
    Sketcher.Constraint("Coincident", 47, 2, 48, 1),
    Sketcher.Constraint("Coincident", 48, 2, 49, 1),
    Sketcher.Constraint("Coincident", 49, 2, 50, 2),
    Sketcher.Constraint("Coincident", 50, 1, 47, 1),
    Sketcher.Constraint("Coincident", 51, 2, 52, 1),
    Sketcher.Constraint("Coincident", 52, 2, 53, 1),
    Sketcher.Constraint("Coincident", 53, 2, 54, 1),
    Sketcher.Constraint("Coincident", 54, 2, 55, 1),
    Sketcher.Constraint("Tangent", 55, 2, 56, 2),
    Sketcher.Constraint("Tangent", 56, 1, 57, 1),
    Sketcher.Constraint("Coincident", 57, 2, 58, 1),
    Sketcher.Constraint("Coincident", 58, 2, 59, 1),
    Sketcher.Constraint("Tangent", 59, 2, 60, 1),
    Sketcher.Constraint("Tangent", 60, 2, 61, 1),
    Sketcher.Constraint("Coincident", 61, 2, 62, 1),
    Sketcher.Constraint("Coincident", 62, 2, 63, 1),
    Sketcher.Constraint("Coincident", 63, 2, 64, 1),
    Sketcher.Constraint("Coincident", 64, 2, 65, 1),
    Sketcher.Constraint("Coincident", 65, 2, 66, 1),
    Sketcher.Constraint("Coincident", 66, 2, 51, 1),
    Sketcher.Constraint("Horizontal", 0),
    Sketcher.Constraint("Vertical", 1),
    Sketcher.Constraint("Vertical", 3),
    Sketcher.Constraint("Vertical", 5),
    Sketcher.Constraint("Vertical", 6),
    Sketcher.Constraint("Vertical", 8),
    Sketcher.Constraint("Vertical", 10),
    Sketcher.Constraint("Horizontal", 11),
    Sketcher.Constraint("Vertical", 12),
    Sketcher.Constraint("Vertical", 14),
    Sketcher.Constraint("Horizontal", 15),
    Sketcher.Constraint("Vertical", 17),
    Sketcher.Constraint("Vertical", 19),
    Sketcher.Constraint("Vertical", 21),
    Sketcher.Constraint("Vertical", 23),
    Sketcher.Constraint("Horizontal", 25),
    Sketcher.Constraint("Vertical", 26),
    Sketcher.Constraint("Horizontal", 27),
    Sketcher.Constraint("Vertical", 28),
    Sketcher.Constraint("Vertical", 30),
    Sketcher.Constraint("Vertical", 32),
    Sketcher.Constraint("Horizontal", 33),
    Sketcher.Constraint("Vertical", 34),
    Sketcher.Constraint("Horizontal", 35),
    Sketcher.Constraint("Vertical", 36),
    Sketcher.Constraint("Vertical", 38),
    Sketcher.Constraint("Vertical", 40),
    Sketcher.Constraint("Horizontal", 41),
    Sketcher.Constraint("Vertical", 42),
    Sketcher.Constraint("Vertical", 43),
    Sketcher.Constraint("Vertical", 45),
    Sketcher.Constraint("Vertical", 47),
    Sketcher.Constraint("Vertical", 49),
    Sketcher.Constraint("Horizontal", 51),
    Sketcher.Constraint("Vertical", 52),
    Sketcher.Constraint("Horizontal", 53),
    Sketcher.Constraint("Vertical", 54),
    Sketcher.Constraint("Horizontal", 55),
    Sketcher.Constraint("Vertical", 57),
    Sketcher.Constraint("Horizontal", 58),
    Sketcher.Constraint("Vertical", 59),
    Sketcher.Constraint("Horizontal", 61),
    Sketcher.Constraint("Vertical", 62),
    Sketcher.Constraint("Horizontal", 63),
    Sketcher.Constraint("Vertical", 64),
    Sketcher.Constraint("Horizontal", 65),
    Sketcher.Constraint("Vertical", 66),
    Sketcher.Constraint("Coincident", 13, 3, 9, 3),
    Sketcher.Constraint("Coincident", 20, 3, 18, 3),
    Sketcher.Constraint("Coincident", 22, 3, 18, 3),
    Sketcher.Constraint("Coincident", 24, 3, 18, 3),
    Sketcher.Constraint("Coincident", 31, 3, 29, 3),
    Sketcher.Constraint("Coincident", 37, 3, 29, 3),
    Sketcher.Constraint("Coincident", 39, 3, 29, 3),
    Sketcher.Constraint("Coincident", 46, 3, 44, 3),
    Sketcher.Constraint("Coincident", 48, 3, 44, 3),
    Sketcher.Constraint("Coincident", 50, 3, 44, 3),
    Sketcher.Constraint("Coincident", 60, 3, 56, 3),
    Sketcher.Constraint("Equal", 18, 22),
    Sketcher.Constraint("Equal", 20, 24),
    Sketcher.Constraint("Equal", 22, 29),
    Sketcher.Constraint("Equal", 24, 31),
    Sketcher.Constraint("Equal", 31, 37),
    Sketcher.Constraint("Equal", 29, 39),
    Sketcher.Constraint("Equal", 39, 44),
    Sketcher.Constraint("Equal", 37, 46),
    Sketcher.Constraint("Equal", 44, 48),
    Sketcher.Constraint("Equal", 46, 50),
    Sketcher.Constraint("Symmetric", 26, 2, 32, 2, -2),
    Sketcher.Constraint("Symmetric", 34, 2, 35, 2, -2),
    Sketcher.Constraint("PointOnObject", 27, 2, -2),
    Sketcher.Constraint("Parallel", 2, 4),
    Sketcher.Constraint("Parallel", 7, 16),
    Sketcher.Constraint("Horizontal", 11, 2, 14, 2),
    Sketcher.Constraint("Horizontal", 18, 2, 21, 2),
    Sketcher.Constraint("Horizontal", 17, 2, 22, 2),
    Sketcher.Constraint("Horizontal", 30, 2, 37, 1),
    Sketcher.Constraint("Horizontal", 33, 2, 40, 2),
    Sketcher.Constraint("Horizontal", 44, 2, 47, 2),
    Sketcher.Constraint("Horizontal", 43, 2, 48, 2),
    Sketcher.Constraint("Horizontal", 51, 2, 54, 2),
    Sketcher.Constraint("Horizontal", 58, 2, 62, 2),
    Sketcher.Constraint("Horizontal", 61, 2, 64, 2),
    Sketcher.Constraint("Vertical", 24, 3, 29, 3),
    Sketcher.Constraint("Vertical", 39, 3, 44, 3),
    Sketcher.Constraint("Vertical", 3, 2, 6, 2),
    Sketcher.Constraint("Vertical", 1, 2, 11, 2),
    Sketcher.Constraint("Vertical", 8, 2, 17, 2),
    Sketcher.Constraint("Vertical", 17, 2, 18, 2),
    Sketcher.Constraint("Vertical", 60, 3, 21, 2),
    Sketcher.Constraint("Vertical", 20, 1, 25, 2),
    Sketcher.Constraint("Vertical", 26, 2, 29, 2),
    Sketcher.Constraint("Vertical", 5, 2, 33, 2),
    Sketcher.Constraint("Vertical", 16, 2, 35, 2),
    Sketcher.Constraint("Vertical", 38, 2, 41, 2),
    Sketcher.Constraint("Vertical", 30, 2, 43, 2),
    Sketcher.Constraint("Vertical", 43, 2, 44, 2),
    Sketcher.Constraint("Vertical", 12, 2, 51, 2),
    Sketcher.Constraint("Vertical", 36, 2, 56, 1),
    Sketcher.Constraint("Vertical", 40, 2, 58, 2),
    Sketcher.Constraint("Vertical", 54, 2, 61, 2),
    Sketcher.Constraint("Vertical", 52, 2, 63, 2),
    Sketcher.Constraint("Vertical", 34, 2, 65, 2),
    Sketcher.Constraint("Equal", 0, 15),
    Sketcher.Constraint("Equal", 41, 53),
    Sketcher.Constraint("Equal", 65, 3),
    Sketcher.Constraint("Equal", 3, 6),
    Sketcher.Constraint("Equal", 35, 10),
    Sketcher.Constraint("Equal", 63, 26),
    Sketcher.Constraint("Equal", 26, 28),
    Sketcher.Constraint("Equal", 54, 57),
    Sketcher.Constraint("Equal", 6, 62),
    Sketcher.Constraint("Radius", 18, Q("3 mm")),
    Sketcher.Constraint("Radius", 20, Q("5 mm")),
    Sketcher.Constraint("DistanceX", 0, 1, 0, 2, Q("3 mm")),
    Sketcher.Constraint("DistanceY", 1, 2, 1, 1, Q("8 mm")),
    Sketcher.Constraint("Angle", 7, Q("135 deg")),
    Sketcher.Constraint("Radius", 9, Q("4.75 mm")),
    Sketcher.Constraint("DistanceY", 5, 1, 5, 2, Q("12.5 mm")),
    Sketcher.Constraint("DistanceY", -1, 1, 2, 2, Q("26 mm")),
    Sketcher.Constraint("DistanceY", -1, 1, 6, 2, Q("5 mm")),
    Sketcher.Constraint("DistanceY", -1, 1, 20, 1, Q("3.5 mm")),
    Sketcher.Constraint("DistanceY", 29, 3, -1, 1, Q("11.797959 mm")),
    Sketcher.Constraint("DistanceY", 43, 2, -1, 1, Q("20.267491 mm")),
    Sketcher.Constraint("DistanceY", 56, 3, -1, 1, Q("33.494897 mm")),
])
sketch2.setExpression("Constraints[179]", "Params.sketch2_radius")
sketch2.setExpression("Constraints[180]", "Params.sketch2_radius2")
sketch2.setExpression("Constraints[181]", "Params.sketch2_width")
sketch2.setExpression("Constraints[182]", "Params.sketch2_height")
sketch2.setExpression("Constraints[184]", "Params.sketch2_radius3")
pocket1 = body.newObject("PartDesign::Pocket", "Pocket")
pocket1.Profile = sketch2
pocket1.setExpression("Length", "Params.pocket1_length")
pocket1.Reversed = True

doc.recompute()
